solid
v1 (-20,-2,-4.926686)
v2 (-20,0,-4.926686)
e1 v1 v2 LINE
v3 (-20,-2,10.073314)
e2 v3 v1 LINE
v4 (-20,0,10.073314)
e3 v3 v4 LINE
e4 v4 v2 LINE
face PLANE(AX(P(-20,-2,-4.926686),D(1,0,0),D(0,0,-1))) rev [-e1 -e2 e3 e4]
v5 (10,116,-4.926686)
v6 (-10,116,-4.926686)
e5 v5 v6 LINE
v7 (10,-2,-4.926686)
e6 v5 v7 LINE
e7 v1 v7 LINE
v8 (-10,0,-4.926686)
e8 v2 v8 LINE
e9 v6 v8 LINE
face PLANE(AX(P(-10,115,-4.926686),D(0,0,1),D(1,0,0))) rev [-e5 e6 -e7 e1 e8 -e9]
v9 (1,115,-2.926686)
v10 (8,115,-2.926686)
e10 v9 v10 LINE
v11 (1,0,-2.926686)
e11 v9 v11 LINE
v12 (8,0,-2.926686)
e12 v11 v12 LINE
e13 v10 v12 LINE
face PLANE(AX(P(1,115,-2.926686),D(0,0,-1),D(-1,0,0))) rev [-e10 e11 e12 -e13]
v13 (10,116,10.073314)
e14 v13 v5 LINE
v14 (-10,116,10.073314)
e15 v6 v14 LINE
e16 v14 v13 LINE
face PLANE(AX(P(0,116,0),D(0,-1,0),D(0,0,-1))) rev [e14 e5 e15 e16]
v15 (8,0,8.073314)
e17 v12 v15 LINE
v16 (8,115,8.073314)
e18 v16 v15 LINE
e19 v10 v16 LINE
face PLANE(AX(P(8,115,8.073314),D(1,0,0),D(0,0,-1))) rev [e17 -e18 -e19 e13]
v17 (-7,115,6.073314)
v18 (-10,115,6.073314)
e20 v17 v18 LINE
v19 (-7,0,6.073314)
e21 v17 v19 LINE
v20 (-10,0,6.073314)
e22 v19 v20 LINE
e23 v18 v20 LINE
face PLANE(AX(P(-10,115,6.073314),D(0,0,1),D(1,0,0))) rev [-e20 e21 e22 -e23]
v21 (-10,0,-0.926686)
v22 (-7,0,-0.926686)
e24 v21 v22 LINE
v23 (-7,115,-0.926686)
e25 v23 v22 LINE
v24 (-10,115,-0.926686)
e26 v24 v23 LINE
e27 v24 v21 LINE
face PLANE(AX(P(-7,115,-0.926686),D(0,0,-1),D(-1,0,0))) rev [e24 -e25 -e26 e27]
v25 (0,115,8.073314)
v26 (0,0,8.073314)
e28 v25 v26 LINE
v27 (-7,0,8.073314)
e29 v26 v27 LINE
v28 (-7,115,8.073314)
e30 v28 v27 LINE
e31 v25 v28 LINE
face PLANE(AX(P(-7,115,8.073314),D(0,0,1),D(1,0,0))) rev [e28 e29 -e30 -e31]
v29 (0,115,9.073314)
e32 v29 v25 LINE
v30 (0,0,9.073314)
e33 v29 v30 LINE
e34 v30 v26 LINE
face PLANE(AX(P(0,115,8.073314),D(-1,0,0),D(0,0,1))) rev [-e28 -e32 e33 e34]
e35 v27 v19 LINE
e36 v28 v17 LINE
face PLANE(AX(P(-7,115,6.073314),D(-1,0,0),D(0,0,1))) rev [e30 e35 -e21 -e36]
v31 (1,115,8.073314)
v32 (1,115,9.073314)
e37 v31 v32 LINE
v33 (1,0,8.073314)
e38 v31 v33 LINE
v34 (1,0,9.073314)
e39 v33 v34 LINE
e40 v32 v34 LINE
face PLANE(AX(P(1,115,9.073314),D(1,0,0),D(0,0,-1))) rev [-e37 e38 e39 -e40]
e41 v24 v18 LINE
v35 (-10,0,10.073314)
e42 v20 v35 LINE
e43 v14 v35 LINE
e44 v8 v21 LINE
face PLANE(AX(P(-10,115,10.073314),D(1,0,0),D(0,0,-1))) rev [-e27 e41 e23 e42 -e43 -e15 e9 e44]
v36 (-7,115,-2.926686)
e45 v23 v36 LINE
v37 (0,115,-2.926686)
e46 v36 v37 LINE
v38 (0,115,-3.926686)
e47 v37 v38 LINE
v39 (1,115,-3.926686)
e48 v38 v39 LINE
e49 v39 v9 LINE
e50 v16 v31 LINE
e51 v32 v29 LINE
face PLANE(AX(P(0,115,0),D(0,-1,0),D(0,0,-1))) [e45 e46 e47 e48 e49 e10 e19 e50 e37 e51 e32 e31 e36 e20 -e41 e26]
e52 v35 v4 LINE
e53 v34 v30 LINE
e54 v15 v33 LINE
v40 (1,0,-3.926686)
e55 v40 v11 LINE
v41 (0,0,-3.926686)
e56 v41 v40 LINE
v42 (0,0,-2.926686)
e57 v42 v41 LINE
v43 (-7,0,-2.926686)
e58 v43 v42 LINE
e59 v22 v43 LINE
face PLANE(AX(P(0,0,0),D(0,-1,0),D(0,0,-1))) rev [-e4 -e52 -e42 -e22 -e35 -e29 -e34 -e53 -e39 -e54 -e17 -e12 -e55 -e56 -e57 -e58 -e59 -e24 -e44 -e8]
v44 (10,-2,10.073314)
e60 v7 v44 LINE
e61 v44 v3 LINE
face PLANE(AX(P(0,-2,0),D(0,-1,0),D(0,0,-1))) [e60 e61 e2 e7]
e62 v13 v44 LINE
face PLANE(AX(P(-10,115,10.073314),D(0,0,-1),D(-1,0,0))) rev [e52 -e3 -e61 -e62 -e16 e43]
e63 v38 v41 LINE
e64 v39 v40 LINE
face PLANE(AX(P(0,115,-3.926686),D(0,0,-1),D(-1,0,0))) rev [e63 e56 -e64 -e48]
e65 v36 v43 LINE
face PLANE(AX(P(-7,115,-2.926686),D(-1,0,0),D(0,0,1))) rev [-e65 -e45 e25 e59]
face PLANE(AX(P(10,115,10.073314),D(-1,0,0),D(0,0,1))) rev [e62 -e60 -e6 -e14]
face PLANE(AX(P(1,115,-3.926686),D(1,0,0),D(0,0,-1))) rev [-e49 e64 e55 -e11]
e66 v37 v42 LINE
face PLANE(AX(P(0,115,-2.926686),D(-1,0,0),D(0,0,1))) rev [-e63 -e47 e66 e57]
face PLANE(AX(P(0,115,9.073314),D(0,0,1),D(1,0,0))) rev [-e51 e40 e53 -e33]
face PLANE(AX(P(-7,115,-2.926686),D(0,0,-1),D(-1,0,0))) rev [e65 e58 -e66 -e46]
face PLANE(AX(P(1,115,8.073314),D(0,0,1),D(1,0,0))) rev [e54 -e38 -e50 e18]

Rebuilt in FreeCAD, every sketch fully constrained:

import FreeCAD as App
import Part
import Sketcher
from FreeCAD import Vector
Q = App.Units.Quantity


def add_polygon(sketch, points):
    """Adds a closed chain of lines whose ends are joined by coincident constraints."""
    first, n = sketch.GeometryCount, len(points)
    for a, b in zip(points, points[1:] + points[:1]):
        sketch.addGeometry(Part.LineSegment(App.Vector(*a, 0), App.Vector(*b, 0)), False)
    for i in range(n):
        sketch.addConstraint(Sketcher.Constraint("Coincident", first + i, 2, first + (i + 1) % n, 1))

doc = App.newDocument("Part")
params = doc.addObject("Spreadsheet::Sheet", "Params")
for row, (alias, value) in enumerate([
    ("sketch1_width", "3 mm"),
    ("sketch1_width2", "7 mm"),
    ("sketch1_width3", "1 mm"),
    ("sketch1_width4", "20 mm"),
    ("sketch1_height", "4 mm"),
    ("pad1_length", "115 mm"),
    ("sketch2_width", "20 mm"),
    ("sketch2_height", "15 mm"),
    ("pad2_length", "1 mm"),
    ("sketch3_width", "30 mm"),
    ("sketch3_height", "15 mm"),
    ("pad3_length", "2 mm"),
], start=1):
    params.set(f"A{row}", alias)
    params.set(f"B{row}", "=" + value)
    params.setAlias(f"B{row}", alias)

body = doc.addObject("PartDesign::Body", "Body")

sketch1 = body.newObject("Sketcher::SketchObject", "Sketch")
sketch1.AttachmentSupport = (doc.getObject("XZ_Plane"), [""])
sketch1.MapMode = "FlatFace"
add_polygon(sketch1, [(-10, -4.9), (-10, -0.9), (-7, -0.9), (-7, -2.9), (0, -2.9), (0, -3.9), (1, -3.9), (1, -2.9), (8, -2.9), (8, 8.1), (1, 8.1), (1, 9.1), (0, 9.1), (0, 8.1), (-7, 8.1), (-7, 6.1), (-10, 6.1), (-10, 10.1), (10, 10.1), (10, -4.9)])
sketch1.addConstraint([
    Sketcher.Constraint("Vertical", 0),
    Sketcher.Constraint("Horizontal", 1),
    Sketcher.Constraint("Vertical", 2),
    Sketcher.Constraint("Horizontal", 3),
    Sketcher.Constraint("Vertical", 4),
    Sketcher.Constraint("Horizontal", 5),
    Sketcher.Constraint("Vertical", 6),
    Sketcher.Constraint("Horizontal", 7),
    Sketcher.Constraint("Vertical", 8),
    Sketcher.Constraint("Horizontal", 9),
    Sketcher.Constraint("Vertical", 10),
    Sketcher.Constraint("Horizontal", 11),
    Sketcher.Constraint("Vertical", 12),
    Sketcher.Constraint("Horizontal", 13),
    Sketcher.Constraint("Vertical", 14),
    Sketcher.Constraint("Horizontal", 15),
    Sketcher.Constraint("Vertical", 16),
    Sketcher.Constraint("Horizontal", 17),
    Sketcher.Constraint("Vertical", 18),
    Sketcher.Constraint("Horizontal", 19),
    Sketcher.Constraint("PointOnObject", 3, 2, -2),
    Sketcher.Constraint("PointOnObject", 11, 2, -2),
    Sketcher.Constraint("Horizontal", 3, 2, 6, 2),
    Sketcher.Constraint("Horizontal", 9, 2, 12, 2),
    Sketcher.Constraint("Vertical", 6, 2, 9, 2),
    Sketcher.Constraint("Vertical", 2, 2, 13, 2),
    Sketcher.Constraint("Vertical", 0, 2, 15, 2),
    Sketcher.Constraint("Equal", 3, 7),
    Sketcher.Constraint("Equal", 11, 4),
    Sketcher.Constraint("Equal", 6, 10),
    Sketcher.Constraint("Equal", 2, 14),
    Sketcher.Constraint("Equal", 0, 16),
    Sketcher.Constraint("DistanceX", 1, 1, 1, 2, Q("3 mm")),
    Sketcher.Constraint("DistanceX", 3, 1, 3, 2, Q("7 mm")),
    Sketcher.Constraint("DistanceX", 5, 1, 5, 2, Q("1 mm")),
    Sketcher.Constraint("DistanceX", 17, 1, 17, 2, Q("20 mm")),
    Sketcher.Constraint("DistanceY", 0, 1, 0, 2, Q("4 mm")),
    Sketcher.Constraint("DistanceY", 2, 2, 2, 1, Q("2 mm")),
    Sketcher.Constraint("DistanceY", 8, 1, 8, 2, Q("11 mm")),
    Sketcher.Constraint("DistanceY", 0, 2, -1, 1, Q("0.926686 mm")),
])
sketch1.setExpression("Constraints[52]", "Params.sketch1_width")
sketch1.setExpression("Constraints[53]", "Params.sketch1_width2")
sketch1.setExpression("Constraints[54]", "Params.sketch1_width3")
sketch1.setExpression("Constraints[55]", "Params.sketch1_width4")
sketch1.setExpression("Constraints[56]", "Params.sketch1_height")
pad1 = body.newObject("PartDesign::Pad", "Pad")
pad1.Profile = sketch1
pad1.setExpression("Length", "Params.pad1_length")
pad1.Reversed = True

sketch2 = body.newObject("Sketcher::SketchObject", "Sketch001")
sketch2.AttachmentSupport = (doc.getObject("XZ_Plane"), [""])
sketch2.MapMode = "FlatFace"
sketch2.AttachmentOffset = App.Placement(Vector(0, 0, -115), App.Rotation())
add_polygon(sketch2, [(-10, -5), (-10, 10), (10, 10), (10, -5)])
sketch2.addConstraint([
    Sketcher.Constraint("Vertical", 0),
    Sketcher.Constraint("Horizontal", 1),
    Sketcher.Constraint("Vertical", 2),
    Sketcher.Constraint("Horizontal", 3),
    Sketcher.Constraint("DistanceX", 1, 1, 1, 2, Q("20 mm")),
    Sketcher.Constraint("DistanceY", 0, 1, 0, 2, Q("15 mm")),
    Sketcher.Constraint("DistanceX", 0, 2, -1, 1, Q("10 mm")),
    Sketcher.Constraint("DistanceY", -1, 1, 0, 2, Q("10.073314 mm")),
])
sketch2.setExpression("Constraints[8]", "Params.sketch2_width")
sketch2.setExpression("Constraints[9]", "Params.sketch2_height")
pad2 = body.newObject("PartDesign::Pad", "Pad001")
pad2.Profile = sketch2
pad2.setExpression("Length", "Params.pad2_length")
pad2.Reversed = True

sketch3 = body.newObject("Sketcher::SketchObject", "Sketch002")
sketch3.AttachmentSupport = (doc.getObject("XZ_Plane"), [""])
sketch3.MapMode = "FlatFace"
add_polygon(sketch3, [(10, -5), (10, 10), (-20, 10), (-20, -5)])
sketch3.addConstraint([
    Sketcher.Constraint("Vertical", 0),
    Sketcher.Constraint("Horizontal", 1),
    Sketcher.Constraint("Vertical", 2),
    Sketcher.Constraint("Horizontal", 3),
    Sketcher.Constraint("DistanceX", 1, 2, 1, 1, Q("30 mm")),
    Sketcher.Constraint("DistanceY", 0, 1, 0, 2, Q("15 mm")),
    Sketcher.Constraint("DistanceX", -1, 1, 0, 2, Q("10 mm")),
    Sketcher.Constraint("DistanceY", -1, 1, 0, 2, Q("10.073314 mm")),
])
sketch3.setExpression("Constraints[8]", "Params.sketch3_width")
sketch3.setExpression("Constraints[9]", "Params.sketch3_height")
pad3 = body.newObject("PartDesign::Pad", "Pad002")
pad3.Profile = sketch3
pad3.setExpression("Length", "Params.pad3_length")

doc.recompute()
